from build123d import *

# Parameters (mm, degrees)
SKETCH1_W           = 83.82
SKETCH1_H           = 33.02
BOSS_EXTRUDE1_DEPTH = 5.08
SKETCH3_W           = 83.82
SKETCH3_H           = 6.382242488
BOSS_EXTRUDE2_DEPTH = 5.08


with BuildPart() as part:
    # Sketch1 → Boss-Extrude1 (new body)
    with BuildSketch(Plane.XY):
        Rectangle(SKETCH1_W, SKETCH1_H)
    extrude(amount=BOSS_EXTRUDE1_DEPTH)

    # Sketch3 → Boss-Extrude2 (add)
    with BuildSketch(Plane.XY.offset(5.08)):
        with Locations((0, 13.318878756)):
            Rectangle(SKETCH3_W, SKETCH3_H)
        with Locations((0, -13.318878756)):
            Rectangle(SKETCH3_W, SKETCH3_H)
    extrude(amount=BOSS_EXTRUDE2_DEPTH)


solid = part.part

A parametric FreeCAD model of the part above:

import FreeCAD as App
import Part
import Sketcher
Q = App.Units.Quantity


def add_polygon(sketch, points):
    """Adds a closed chain of lines whose ends are joined by coincident constraints."""
    first, n = sketch.GeometryCount, len(points)
    for a, b in zip(points, points[1:] + points[:1]):
        sketch.addGeometry(Part.LineSegment(App.Vector(*a, 0), App.Vector(*b, 0)), False)
    for i in range(n):
        sketch.addConstraint(Sketcher.Constraint("Coincident", first + i, 2, first + (i + 1) % n, 1))

doc = App.newDocument("Part")
body = doc.addObject("PartDesign::Body", "Body")

sketch1 = body.newObject("Sketcher::SketchObject", "Sketch")
sketch1.AttachmentSupport = (doc.getObject("XY_Plane"), [""])
sketch1.MapMode = "FlatFace"
add_polygon(sketch1, [(-41.91, 16.51), (-41.91, -16.51), (41.91, -16.51), (41.91, 16.51)])
sketch1.addConstraint([
    Sketcher.Constraint("Vertical", 0),
    Sketcher.Constraint("Horizontal", 1),
    Sketcher.Constraint("Vertical", 2),
    Sketcher.Constraint("Horizontal", 3),
    Sketcher.Constraint("Symmetric", 0, 2, 2, 2, -1, 1),
    Sketcher.Constraint("DistanceX", 1, 1, 1, 2, Q("3.3 in")),
    Sketcher.Constraint("DistanceY", 0, 2, 0, 1, Q("1.3 in")),
])
pad1 = body.newObject("PartDesign::Pad", "Pad")
pad1.Profile = sketch1
pad1.Length = Q("0.2 in")

sketch2 = body.newObject("Sketcher::SketchObject", "Sketch001")
sketch2.AttachmentSupport = (doc.getObject("XY_Plane"), [""])
sketch2.MapMode = "FlatFace"
sketch2.AttachmentOffset = App.Placement(App.Vector(0, 0, 0.2 * 25.4), App.Rotation())
add_polygon(sketch2, [(-41.91, 16.51), (-41.91, 10.127758), (41.91, 10.127758), (41.91, 16.51)])
add_polygon(sketch2, [(-41.91, -10.127758), (-41.91, -16.51), (41.91, -16.51), (41.91, -10.127758)])
sketch2.addConstraint([
    Sketcher.Constraint("Vertical", 0),
    Sketcher.Constraint("Horizontal", 1),
    Sketcher.Constraint("Vertical", 2),
    Sketcher.Constraint("Horizontal", 3),
    Sketcher.Constraint("Vertical", 4),
    Sketcher.Constraint("Horizontal", 5),
    Sketcher.Constraint("Vertical", 6),
    Sketcher.Constraint("Horizontal", 7),
    Sketcher.Constraint("Symmetric", 2, 2, 4, 2, -1, 1),
    Sketcher.Constraint("Symmetric", 0, 2, 6, 2, -1, 1),
    Sketcher.Constraint("Vertical", 3, 2, 4, 2),
    Sketcher.Constraint("DistanceX", 1, 1, 1, 2, Q("3.3 in")),
    Sketcher.Constraint("DistanceY", 4, 2, 3, 2, Q("1.3 in")),
    Sketcher.Constraint("DistanceY", 0, 2, 0, 1, 6.382242),
])
pad2 = body.newObject("PartDesign::Pad", "Pad001")
pad2.Profile = sketch2
pad2.Length = Q("0.2 in")

doc.recompute()
